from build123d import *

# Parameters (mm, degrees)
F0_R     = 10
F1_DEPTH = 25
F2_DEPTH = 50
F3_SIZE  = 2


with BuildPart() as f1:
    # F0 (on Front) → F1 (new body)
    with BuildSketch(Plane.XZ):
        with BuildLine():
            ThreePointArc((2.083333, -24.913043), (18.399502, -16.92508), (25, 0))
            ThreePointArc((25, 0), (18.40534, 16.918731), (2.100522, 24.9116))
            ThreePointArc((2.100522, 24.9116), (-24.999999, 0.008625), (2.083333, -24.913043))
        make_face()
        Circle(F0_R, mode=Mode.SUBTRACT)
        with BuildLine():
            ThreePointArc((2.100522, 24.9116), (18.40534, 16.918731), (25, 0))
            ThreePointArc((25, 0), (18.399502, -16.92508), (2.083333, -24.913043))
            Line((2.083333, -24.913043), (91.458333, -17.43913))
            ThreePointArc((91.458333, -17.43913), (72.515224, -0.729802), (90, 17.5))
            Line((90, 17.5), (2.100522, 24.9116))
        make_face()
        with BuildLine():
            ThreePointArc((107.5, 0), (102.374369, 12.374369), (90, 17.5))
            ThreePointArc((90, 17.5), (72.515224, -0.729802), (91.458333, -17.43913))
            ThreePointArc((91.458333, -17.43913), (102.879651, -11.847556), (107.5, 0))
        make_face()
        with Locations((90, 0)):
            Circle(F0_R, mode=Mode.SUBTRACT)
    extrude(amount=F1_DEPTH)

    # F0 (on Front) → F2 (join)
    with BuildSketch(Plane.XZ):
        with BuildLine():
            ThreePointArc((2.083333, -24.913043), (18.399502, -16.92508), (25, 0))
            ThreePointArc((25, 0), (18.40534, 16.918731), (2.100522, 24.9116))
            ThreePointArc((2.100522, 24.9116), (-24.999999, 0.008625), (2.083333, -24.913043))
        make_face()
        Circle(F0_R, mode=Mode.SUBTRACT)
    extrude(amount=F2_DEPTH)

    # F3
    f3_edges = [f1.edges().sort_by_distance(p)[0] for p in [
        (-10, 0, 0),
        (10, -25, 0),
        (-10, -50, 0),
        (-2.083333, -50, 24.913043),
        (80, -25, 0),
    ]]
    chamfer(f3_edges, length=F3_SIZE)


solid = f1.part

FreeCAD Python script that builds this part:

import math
import FreeCAD as App
import Part
import Sketcher
from FreeCAD import Vector


def edges_at(feature, points):
    """Names of the edges that pass closest to the given points."""
    edges = feature.Shape.Edges
    near = lambda p: min(range(len(edges)), key=lambda i: edges[i].distToShape(Part.Vertex(*p))[0])
    return sorted({f"Edge{near(p) + 1}" for p in points})

doc = App.newDocument("Part")
body = doc.addObject("PartDesign::Body", "Body")

# Sketch on XZ plane
sketch1 = doc.addObject("Sketcher::SketchObject", "Sketch")
body.addObject(sketch1)
sketch1.AttachmentSupport = (doc.XZ_Plane, [""])
sketch1.MapMode = "FlatFace"
sketch1.addGeometry([
    Part.ArcOfCircle(Part.Circle(Vector(0, 0, 0), Vector(0, 0, 1), 25), math.radians(85), math.radians(275)),  # 0
    Part.LineSegment(Vector(2, -25, 0), Vector(91, -17, 0)),  # 1
    Part.ArcOfCircle(Part.Circle(Vector(90, 0, 0), Vector(0, 0, 1), 18), math.radians(-85), math.radians(0)),  # 2
    Part.ArcOfCircle(Part.Circle(Vector(90, 0, 0), Vector(0, 0, 1), 17), math.radians(0), math.radians(90)),  # 3
    Part.LineSegment(Vector(90, 18, 0), Vector(2, 25, 0)),  # 4
    Part.Circle(Vector(0, 0, 0), Vector(0, 0, 1), 10),  # 5
    Part.Circle(Vector(90, 0, 0), Vector(0, 0, 1), 10),  # 6
], False)
sketch1.addConstraint([
    Sketcher.Constraint("Tangent", 0, 2, 1, 1),
    Sketcher.Constraint("Tangent", 1, 2, 2, 1),
    Sketcher.Constraint("Tangent", 2, 2, 3, 1),
    Sketcher.Constraint("Coincident", 3, 2, 4, 1),
    Sketcher.Constraint("Tangent", 4, 2, 0, 1),
    Sketcher.Constraint("Coincident", 0, 3, -1, 1),
    Sketcher.Constraint("Coincident", 5, 3, -1, 1),
    Sketcher.Constraint("Coincident", 6, 3, 2, 3),
    Sketcher.Constraint("Equal", 2, 3),
    Sketcher.Constraint("Equal", 5, 6),
    Sketcher.Constraint("PointOnObject", 2, 3, -1),
    Sketcher.Constraint("PointOnObject", 2, 2, -1),
    Sketcher.Constraint("Vertical", 6, 3, 3, 2),
    Sketcher.Constraint("Diameter", 5, 20.0),
    Sketcher.Constraint("Radius", 0, 25.0),
    Sketcher.Constraint("Radius", 2, 17.5),
    Sketcher.Constraint("DistanceX", -1, 1, 2, 3, 90.0),
])
pad1 = doc.addObject("PartDesign::Pad", "Pad")
body.addObject(pad1)
pad1.Profile = sketch1
pad1.Length = 25

# Sketch on XZ plane
sketch2 = doc.addObject("Sketcher::SketchObject", "Sketch001")
body.addObject(sketch2)
sketch2.AttachmentSupport = (doc.XZ_Plane, [""])
sketch2.MapMode = "FlatFace"
sketch2.addGeometry([
    Part.ArcOfCircle(Part.Circle(Vector(0, 0, 0), Vector(0, 0, 1), 25), math.radians(-85), math.radians(0)),
    Part.ArcOfCircle(Part.Circle(Vector(0, 0, 0), Vector(0, 0, 1), 25), math.radians(0), math.radians(85)),
    Part.ArcOfCircle(Part.Circle(Vector(0, 0, 0), Vector(0, 0, 1), 25), math.radians(85), math.radians(275)),
    Part.Circle(Vector(0, 0, 0), Vector(0, 0, 1), 10),
], False)
sketch2.addConstraint([
    Sketcher.Constraint("Tangent", 0, 2, 1, 1),
    Sketcher.Constraint("Tangent", 1, 2, 2, 1),
    Sketcher.Constraint("Tangent", 2, 2, 0, 1),
    Sketcher.Constraint("Coincident", 0, 3, -1, 1),
    Sketcher.Constraint("Coincident", 3, 3, -1, 1),
    Sketcher.Constraint("PointOnObject", 0, 2, -1),
    Sketcher.Constraint("Diameter", 3, 20.0),
    Sketcher.Constraint("Radius", 0, 24.999999),
    Sketcher.Constraint("DistanceY", -1, 1, 1, 2, 24.9116),
    Sketcher.Constraint("DistanceX", -1, 1, 2, 2, 2.083333),
])
pad2 = doc.addObject("PartDesign::Pad", "Pad001")
body.addObject(pad2)
pad2.Profile = sketch2
pad2.Length = 50
doc.recompute()

chamfer = doc.addObject("PartDesign::Chamfer", "Chamfer")
body.addObject(chamfer)
chamfer.Base = (pad2, edges_at(pad2, [
    (-10, 0, 0),
    (10, -25, 0),
    (-10, -50, 0),
    (-25, -50, 0.009),
    (80, -25, 0),
]))
chamfer.Size = 2

doc.recompute()
